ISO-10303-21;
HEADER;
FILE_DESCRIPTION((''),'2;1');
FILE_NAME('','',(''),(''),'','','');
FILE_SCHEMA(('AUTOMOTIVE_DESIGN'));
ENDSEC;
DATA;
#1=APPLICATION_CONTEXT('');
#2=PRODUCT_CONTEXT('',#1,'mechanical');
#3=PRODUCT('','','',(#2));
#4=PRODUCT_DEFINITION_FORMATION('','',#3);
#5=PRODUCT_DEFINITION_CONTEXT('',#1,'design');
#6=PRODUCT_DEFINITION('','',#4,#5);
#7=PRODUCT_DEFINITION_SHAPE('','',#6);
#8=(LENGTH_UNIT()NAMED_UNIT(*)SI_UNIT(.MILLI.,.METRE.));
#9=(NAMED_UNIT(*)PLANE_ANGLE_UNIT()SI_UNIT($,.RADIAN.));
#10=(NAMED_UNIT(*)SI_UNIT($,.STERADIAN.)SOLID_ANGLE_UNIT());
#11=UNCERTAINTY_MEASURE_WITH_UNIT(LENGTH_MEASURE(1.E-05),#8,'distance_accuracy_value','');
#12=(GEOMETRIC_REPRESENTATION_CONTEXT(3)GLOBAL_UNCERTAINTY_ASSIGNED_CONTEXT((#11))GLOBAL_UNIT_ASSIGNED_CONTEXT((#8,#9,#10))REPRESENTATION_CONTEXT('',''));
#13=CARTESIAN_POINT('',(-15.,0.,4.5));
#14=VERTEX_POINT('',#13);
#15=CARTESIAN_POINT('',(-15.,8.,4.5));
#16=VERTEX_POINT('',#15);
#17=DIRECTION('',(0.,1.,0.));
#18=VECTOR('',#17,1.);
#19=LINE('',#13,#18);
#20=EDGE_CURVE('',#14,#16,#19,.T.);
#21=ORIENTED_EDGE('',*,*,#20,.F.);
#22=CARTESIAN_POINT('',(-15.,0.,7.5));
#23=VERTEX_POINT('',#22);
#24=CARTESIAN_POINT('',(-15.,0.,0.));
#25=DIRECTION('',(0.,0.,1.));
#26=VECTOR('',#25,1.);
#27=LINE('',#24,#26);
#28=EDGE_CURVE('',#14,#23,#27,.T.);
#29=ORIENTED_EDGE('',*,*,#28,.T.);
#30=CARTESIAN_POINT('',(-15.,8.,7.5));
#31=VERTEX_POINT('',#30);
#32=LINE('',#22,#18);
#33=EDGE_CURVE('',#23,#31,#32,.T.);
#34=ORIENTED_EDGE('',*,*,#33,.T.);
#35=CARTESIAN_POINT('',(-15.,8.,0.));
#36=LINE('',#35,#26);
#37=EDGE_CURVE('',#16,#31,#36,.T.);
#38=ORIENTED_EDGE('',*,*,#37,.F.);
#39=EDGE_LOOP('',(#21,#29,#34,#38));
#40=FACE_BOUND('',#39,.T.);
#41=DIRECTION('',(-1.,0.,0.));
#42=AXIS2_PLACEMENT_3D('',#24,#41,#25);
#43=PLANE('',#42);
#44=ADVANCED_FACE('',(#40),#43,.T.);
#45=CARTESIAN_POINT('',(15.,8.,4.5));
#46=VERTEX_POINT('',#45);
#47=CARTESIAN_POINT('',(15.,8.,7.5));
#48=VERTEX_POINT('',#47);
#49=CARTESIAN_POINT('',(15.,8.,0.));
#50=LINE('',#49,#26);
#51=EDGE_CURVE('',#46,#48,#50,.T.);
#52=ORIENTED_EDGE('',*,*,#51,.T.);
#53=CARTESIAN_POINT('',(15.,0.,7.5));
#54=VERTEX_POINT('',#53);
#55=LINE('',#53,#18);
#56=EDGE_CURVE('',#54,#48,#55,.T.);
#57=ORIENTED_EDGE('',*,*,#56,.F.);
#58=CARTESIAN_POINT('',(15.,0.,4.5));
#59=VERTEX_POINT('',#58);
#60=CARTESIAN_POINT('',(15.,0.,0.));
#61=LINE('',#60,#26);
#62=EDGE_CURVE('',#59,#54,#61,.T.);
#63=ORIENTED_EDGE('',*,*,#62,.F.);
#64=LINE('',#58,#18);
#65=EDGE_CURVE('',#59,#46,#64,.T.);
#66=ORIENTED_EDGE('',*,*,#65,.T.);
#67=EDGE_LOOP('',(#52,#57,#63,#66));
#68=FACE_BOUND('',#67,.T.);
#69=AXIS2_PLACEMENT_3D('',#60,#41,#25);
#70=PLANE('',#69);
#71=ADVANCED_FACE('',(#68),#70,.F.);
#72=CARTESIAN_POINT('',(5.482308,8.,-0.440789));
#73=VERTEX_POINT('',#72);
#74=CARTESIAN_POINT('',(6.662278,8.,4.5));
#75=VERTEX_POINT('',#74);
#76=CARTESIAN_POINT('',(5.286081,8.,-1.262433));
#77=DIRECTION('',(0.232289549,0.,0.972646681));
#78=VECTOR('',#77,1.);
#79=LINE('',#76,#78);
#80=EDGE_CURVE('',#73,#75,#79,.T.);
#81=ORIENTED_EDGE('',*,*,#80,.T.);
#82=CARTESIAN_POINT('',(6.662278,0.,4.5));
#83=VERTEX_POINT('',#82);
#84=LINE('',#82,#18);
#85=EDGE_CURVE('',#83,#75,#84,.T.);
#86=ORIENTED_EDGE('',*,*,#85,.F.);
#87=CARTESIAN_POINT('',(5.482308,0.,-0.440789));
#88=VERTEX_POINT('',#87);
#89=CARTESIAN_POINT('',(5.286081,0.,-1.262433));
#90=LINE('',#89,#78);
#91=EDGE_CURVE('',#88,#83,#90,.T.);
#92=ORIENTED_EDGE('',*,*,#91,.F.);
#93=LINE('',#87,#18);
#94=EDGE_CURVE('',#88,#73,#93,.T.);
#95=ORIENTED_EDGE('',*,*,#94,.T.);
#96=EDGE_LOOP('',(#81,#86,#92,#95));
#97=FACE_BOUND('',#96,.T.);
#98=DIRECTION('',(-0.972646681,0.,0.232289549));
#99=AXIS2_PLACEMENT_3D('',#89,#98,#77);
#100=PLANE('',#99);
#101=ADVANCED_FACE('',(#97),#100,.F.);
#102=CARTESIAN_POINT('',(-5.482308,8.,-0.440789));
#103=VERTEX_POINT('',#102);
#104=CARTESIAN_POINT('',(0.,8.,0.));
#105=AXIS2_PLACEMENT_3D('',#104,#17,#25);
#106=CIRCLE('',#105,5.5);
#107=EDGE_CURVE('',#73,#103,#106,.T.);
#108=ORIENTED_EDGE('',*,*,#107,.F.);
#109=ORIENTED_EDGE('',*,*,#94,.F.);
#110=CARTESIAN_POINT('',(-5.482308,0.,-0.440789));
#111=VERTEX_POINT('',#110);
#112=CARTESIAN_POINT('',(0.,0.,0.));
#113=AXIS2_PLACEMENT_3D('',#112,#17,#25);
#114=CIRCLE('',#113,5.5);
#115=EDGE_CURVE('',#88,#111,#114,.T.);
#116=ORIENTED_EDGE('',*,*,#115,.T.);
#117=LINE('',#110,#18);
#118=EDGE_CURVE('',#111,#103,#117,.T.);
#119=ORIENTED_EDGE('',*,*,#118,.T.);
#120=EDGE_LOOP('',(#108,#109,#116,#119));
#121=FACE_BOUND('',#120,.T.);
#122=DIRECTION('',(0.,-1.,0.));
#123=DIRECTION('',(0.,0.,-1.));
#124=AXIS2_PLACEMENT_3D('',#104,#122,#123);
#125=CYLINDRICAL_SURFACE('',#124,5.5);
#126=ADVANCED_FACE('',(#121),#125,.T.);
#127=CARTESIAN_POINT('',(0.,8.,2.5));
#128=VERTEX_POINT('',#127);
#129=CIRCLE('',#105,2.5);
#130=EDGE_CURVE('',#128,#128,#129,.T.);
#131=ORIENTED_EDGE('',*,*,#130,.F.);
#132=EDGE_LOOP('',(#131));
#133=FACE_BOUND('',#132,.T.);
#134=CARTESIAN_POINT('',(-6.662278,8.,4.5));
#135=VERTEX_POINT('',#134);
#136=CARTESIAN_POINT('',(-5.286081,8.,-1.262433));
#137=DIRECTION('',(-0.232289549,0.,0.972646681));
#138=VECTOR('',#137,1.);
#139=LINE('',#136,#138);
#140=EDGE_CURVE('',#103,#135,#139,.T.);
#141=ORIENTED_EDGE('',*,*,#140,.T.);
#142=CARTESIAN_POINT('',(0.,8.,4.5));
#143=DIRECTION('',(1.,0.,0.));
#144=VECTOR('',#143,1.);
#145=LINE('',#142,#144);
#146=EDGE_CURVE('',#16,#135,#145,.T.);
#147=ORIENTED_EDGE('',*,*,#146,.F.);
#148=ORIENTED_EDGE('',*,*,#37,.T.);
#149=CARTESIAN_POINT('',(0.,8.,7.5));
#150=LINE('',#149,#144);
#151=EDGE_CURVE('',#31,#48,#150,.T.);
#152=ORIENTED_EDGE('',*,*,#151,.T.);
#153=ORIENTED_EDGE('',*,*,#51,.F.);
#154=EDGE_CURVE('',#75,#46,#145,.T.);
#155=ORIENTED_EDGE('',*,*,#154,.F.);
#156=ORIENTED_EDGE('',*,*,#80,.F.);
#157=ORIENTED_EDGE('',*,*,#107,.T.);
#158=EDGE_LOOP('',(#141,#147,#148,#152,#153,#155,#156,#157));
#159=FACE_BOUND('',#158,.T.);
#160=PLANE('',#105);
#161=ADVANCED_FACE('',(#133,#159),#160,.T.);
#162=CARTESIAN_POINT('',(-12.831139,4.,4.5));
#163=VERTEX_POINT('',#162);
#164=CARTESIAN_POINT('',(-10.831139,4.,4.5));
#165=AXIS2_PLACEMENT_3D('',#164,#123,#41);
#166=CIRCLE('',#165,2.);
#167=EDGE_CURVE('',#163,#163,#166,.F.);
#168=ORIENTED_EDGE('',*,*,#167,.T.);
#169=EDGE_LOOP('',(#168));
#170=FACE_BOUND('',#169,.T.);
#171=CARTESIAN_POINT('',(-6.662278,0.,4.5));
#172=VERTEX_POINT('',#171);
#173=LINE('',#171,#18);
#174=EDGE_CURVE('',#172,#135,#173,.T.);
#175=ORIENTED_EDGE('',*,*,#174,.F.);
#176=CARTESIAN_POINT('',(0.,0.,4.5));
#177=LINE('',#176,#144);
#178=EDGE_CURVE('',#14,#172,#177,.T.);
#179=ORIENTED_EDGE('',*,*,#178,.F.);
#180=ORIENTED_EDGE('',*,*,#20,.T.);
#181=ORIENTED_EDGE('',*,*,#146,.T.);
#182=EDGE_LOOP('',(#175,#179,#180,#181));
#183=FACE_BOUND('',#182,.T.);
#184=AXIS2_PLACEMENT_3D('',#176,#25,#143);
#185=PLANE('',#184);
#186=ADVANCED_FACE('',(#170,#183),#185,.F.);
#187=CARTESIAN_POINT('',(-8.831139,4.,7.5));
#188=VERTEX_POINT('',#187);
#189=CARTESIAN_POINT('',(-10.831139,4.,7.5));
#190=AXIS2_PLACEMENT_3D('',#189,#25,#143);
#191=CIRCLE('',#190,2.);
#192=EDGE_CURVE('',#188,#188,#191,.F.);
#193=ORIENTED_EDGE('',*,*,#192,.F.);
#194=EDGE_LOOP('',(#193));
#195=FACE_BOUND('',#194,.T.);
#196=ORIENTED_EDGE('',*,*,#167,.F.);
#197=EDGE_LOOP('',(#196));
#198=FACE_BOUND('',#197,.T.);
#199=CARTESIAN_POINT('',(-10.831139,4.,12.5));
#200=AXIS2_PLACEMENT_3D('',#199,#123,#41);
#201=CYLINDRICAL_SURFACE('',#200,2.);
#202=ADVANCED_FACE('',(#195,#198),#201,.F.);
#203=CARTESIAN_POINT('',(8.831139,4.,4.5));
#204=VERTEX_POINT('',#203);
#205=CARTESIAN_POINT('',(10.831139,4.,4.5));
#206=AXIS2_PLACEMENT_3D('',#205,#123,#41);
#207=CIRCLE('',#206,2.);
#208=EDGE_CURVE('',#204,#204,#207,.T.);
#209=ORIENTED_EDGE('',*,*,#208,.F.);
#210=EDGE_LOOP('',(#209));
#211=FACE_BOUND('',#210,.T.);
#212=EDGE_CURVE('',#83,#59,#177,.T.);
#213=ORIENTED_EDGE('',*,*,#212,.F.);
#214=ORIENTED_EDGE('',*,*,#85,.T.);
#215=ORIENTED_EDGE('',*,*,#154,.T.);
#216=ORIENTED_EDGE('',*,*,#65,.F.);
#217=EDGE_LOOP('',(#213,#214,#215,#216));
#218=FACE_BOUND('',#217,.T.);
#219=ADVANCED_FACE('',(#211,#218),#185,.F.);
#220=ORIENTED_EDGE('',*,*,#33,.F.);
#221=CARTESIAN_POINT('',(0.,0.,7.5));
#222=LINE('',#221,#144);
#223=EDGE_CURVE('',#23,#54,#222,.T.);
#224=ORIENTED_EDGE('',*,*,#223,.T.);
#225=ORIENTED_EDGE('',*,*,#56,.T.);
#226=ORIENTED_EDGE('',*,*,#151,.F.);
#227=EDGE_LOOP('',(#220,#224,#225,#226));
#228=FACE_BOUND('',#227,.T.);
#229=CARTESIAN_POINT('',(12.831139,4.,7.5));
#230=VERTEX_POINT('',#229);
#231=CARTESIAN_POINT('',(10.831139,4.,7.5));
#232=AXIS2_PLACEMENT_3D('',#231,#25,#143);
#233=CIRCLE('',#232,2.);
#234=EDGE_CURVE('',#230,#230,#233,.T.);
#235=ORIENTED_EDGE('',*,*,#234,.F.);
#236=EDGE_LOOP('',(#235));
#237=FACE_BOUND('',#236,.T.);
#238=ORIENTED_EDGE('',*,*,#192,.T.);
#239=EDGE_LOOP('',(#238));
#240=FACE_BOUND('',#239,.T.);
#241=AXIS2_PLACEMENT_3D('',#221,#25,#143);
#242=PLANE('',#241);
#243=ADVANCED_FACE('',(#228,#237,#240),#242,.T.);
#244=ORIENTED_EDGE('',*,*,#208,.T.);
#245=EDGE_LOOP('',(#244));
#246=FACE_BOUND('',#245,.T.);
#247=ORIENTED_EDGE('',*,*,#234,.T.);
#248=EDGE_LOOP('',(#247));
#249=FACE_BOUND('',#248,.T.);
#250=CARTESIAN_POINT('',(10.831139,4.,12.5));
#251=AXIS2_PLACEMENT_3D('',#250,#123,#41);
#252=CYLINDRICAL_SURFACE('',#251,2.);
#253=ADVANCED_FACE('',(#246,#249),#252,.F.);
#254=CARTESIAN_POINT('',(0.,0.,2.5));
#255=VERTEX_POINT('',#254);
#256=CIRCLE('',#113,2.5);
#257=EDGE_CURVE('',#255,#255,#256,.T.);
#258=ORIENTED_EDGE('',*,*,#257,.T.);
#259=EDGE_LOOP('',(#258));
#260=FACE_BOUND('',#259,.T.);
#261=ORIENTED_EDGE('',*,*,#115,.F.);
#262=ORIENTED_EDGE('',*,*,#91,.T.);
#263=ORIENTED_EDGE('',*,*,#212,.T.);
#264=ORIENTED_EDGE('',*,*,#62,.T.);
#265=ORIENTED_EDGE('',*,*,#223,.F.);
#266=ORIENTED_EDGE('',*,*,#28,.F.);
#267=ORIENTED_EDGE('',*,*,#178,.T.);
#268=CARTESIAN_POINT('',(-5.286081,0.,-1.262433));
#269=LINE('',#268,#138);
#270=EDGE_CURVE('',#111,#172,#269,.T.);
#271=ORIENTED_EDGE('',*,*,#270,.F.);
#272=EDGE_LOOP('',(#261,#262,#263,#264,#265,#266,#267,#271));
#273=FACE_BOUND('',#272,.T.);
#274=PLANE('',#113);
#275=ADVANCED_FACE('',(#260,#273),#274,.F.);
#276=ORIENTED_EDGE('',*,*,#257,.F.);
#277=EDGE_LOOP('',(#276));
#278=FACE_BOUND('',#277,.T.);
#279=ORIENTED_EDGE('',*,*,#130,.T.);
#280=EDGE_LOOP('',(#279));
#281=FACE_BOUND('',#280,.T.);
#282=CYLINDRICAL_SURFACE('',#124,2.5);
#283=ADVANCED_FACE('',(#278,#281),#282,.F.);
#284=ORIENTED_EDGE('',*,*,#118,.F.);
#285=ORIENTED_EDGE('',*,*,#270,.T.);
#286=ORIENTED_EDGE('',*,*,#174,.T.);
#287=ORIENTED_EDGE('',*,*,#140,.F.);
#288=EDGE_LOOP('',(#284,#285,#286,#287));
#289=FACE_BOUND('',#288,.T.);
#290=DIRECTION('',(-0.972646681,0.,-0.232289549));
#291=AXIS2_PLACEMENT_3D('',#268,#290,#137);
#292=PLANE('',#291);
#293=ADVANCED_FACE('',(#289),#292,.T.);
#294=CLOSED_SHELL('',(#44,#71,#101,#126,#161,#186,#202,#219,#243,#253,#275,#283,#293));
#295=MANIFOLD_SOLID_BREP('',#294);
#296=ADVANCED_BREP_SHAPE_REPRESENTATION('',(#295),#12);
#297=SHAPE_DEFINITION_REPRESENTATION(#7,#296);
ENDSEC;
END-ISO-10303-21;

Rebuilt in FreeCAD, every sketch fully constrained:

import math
import FreeCAD as App
import Part
import Sketcher

V = App.Vector

doc = App.newDocument("Part")
params = doc.addObject("Spreadsheet::Sheet", "Params")
for row, (alias, value) in enumerate([
    ("sketch1_diameter", "11 mm"),
    ("sketch1_diameter2", "5 mm"),
    ("pad1_length", "8 mm"),
    ("sketch2_radius", "5.5 mm"),
    ("sketch2_width", "30 mm"),
    ("sketch2_height", "3 mm"),
    ("pad2_length", "8 mm"),
    ("sketch3_diameter", "4 mm"),
    ("pocket1_length", "8 mm"),
], start=1):
    params.set(f"A{row}", alias)
    params.set(f"B{row}", "=" + value)
    params.setAlias(f"B{row}", alias)

body = doc.addObject("PartDesign::Body", "Body")

# Sketch on XZ plane
sketch1 = body.newObject("Sketcher::SketchObject", "Sketch")
sketch1.AttachmentSupport = (doc.getObject("XZ_Plane"), [""])
sketch1.MapMode = "FlatFace"
sketch1.addGeometry([
    Part.Circle(V(0, 0, 0), V(0, 0, 1), 5.5),
    Part.Circle(V(0, 0, 0), V(0, 0, 1), 2.5),
], False)
sketch1.addConstraint([
    Sketcher.Constraint("Coincident", 0, 3, -1, 1),
    Sketcher.Constraint("Coincident", 1, 3, -1, 1),
    Sketcher.Constraint("Diameter", 0, 11.0),
    Sketcher.Constraint("Diameter", 1, 5.0),
])
sketch1.setExpression("Constraints[2]", "Params.sketch1_diameter")
sketch1.setExpression("Constraints[3]", "Params.sketch1_diameter2")
pad1 = body.newObject("PartDesign::Pad", "Pad")
pad1.Profile = sketch1
pad1.setExpression("Length", "Params.pad1_length")
pad1.Reversed = True

# Sketch on XZ plane
sketch2 = body.newObject("Sketcher::SketchObject", "Sketch001")
sketch2.AttachmentSupport = (doc.getObject("XZ_Plane"), [""])
sketch2.MapMode = "FlatFace"
sketch2.addGeometry([
    Part.LineSegment(V(15, 4.5, 0), V(6.66, 4.5, 0)),  # 0
    Part.LineSegment(V(6.66, 4.5, 0), V(5.48, -0.44, 0)),  # 1
    Part.ArcOfCircle(Part.Circle(V(0, 0, 0), V(0, 0, 1), 5.5), math.radians(-4.6), math.radians(0)),  # 2
    Part.ArcOfCircle(Part.Circle(V(0, 0, 0), V(0, 0, 1), 5.5), math.radians(0), math.radians(55)),  # 3
    Part.ArcOfCircle(Part.Circle(V(0, 0, 0), V(0, 0, 1), 5.5), math.radians(55), math.radians(90)),  # 4
    Part.ArcOfCircle(Part.Circle(V(0, 0, 0), V(0, 0, 1), 5.5), math.radians(90), math.radians(125)),  # 5
    Part.ArcOfCircle(Part.Circle(V(0, 0, 0), V(0, 0, 1), 5.5), math.radians(125), math.radians(185)),  # 6
    Part.LineSegment(V(-5.48, -0.44, 0), V(-6.66, 4.5, 0)),  # 7
    Part.LineSegment(V(-6.66, 4.5, 0), V(-15, 4.5, 0)),  # 8
    Part.LineSegment(V(-15, 4.5, 0), V(-15, 7.5, 0)),  # 9
    Part.LineSegment(V(-15, 7.5, 0), V(15, 7.5, 0)),  # 10
    Part.LineSegment(V(15, 7.5, 0), V(15, 4.5, 0)),  # 11
], False)
sketch2.addConstraint([
    Sketcher.Constraint("Coincident", 0, 2, 1, 1),
    Sketcher.Constraint("Coincident", 1, 2, 2, 1),
    Sketcher.Constraint("Tangent", 2, 2, 3, 1),
    Sketcher.Constraint("Tangent", 3, 2, 4, 1),
    Sketcher.Constraint("Tangent", 4, 2, 5, 1),
    Sketcher.Constraint("Tangent", 5, 2, 6, 1),
    Sketcher.Constraint("Coincident", 6, 2, 7, 1),
    Sketcher.Constraint("Coincident", 7, 2, 8, 1),
    Sketcher.Constraint("Coincident", 8, 2, 9, 1),
    Sketcher.Constraint("Coincident", 9, 2, 10, 1),
    Sketcher.Constraint("Coincident", 10, 2, 11, 1),
    Sketcher.Constraint("Coincident", 11, 2, 0, 1),
    Sketcher.Constraint("Horizontal", 0),
    Sketcher.Constraint("Horizontal", 8),
    Sketcher.Constraint("Vertical", 9),
    Sketcher.Constraint("Horizontal", 10),
    Sketcher.Constraint("Vertical", 11),
    Sketcher.Constraint("Coincident", 2, 3, -1, 1),
    Sketcher.Constraint("Coincident", 4, 3, -1, 1),
    Sketcher.Constraint("Coincident", 6, 3, -1, 1),
    Sketcher.Constraint("Symmetric", 0, 2, 7, 2, -2),
    Sketcher.Constraint("PointOnObject", 2, 2, -1),
    Sketcher.Constraint("PointOnObject", 4, 2, -2),
    Sketcher.Constraint("Horizontal", 0, 2, 3, 2),
    Sketcher.Constraint("Horizontal", 3, 2, 5, 2),
    Sketcher.Constraint("Horizontal", 1, 2, 6, 2),
    Sketcher.Constraint("Equal", 0, 8),
    Sketcher.Constraint("Radius", 2, 5.5),
    Sketcher.Constraint("DistanceX", 10, 1, 10, 2, 30.0),
    Sketcher.Constraint("DistanceY", 9, 1, 9, 2, 3.0),
    Sketcher.Constraint("DistanceY", 3, 2, 4, 2, 1.0),
    Sketcher.Constraint("DistanceX", 3, 2, 0, 2, 3.5),
    Sketcher.Constraint("DistanceX", -1, 1, 1, 2, 5.482308),
])
sketch2.setExpression("Constraints[27]", "Params.sketch2_radius")
sketch2.setExpression("Constraints[28]", "Params.sketch2_width")
sketch2.setExpression("Constraints[29]", "Params.sketch2_height")
pad2 = body.newObject("PartDesign::Pad", "Pad001")
pad2.Profile = sketch2
pad2.setExpression("Length", "Params.pad2_length")
pad2.Reversed = True

# Sketch on XY plane
sketch3 = body.newObject("Sketcher::SketchObject", "Sketch002")
sketch3.AttachmentSupport = (doc.getObject("XY_Plane"), [""])
sketch3.MapMode = "FlatFace"
sketch3.AttachmentOffset = App.Placement(V(0, 0, 4.5), App.Rotation())
sketch3.addGeometry([
    Part.Circle(V(10.8, 4, 0), V(0, 0, 1), 2),
    Part.Circle(V(-10.8, 4, 0), V(0, 0, 1), 2),
], False)
sketch3.addConstraint([
    Sketcher.Constraint("Equal", 0, 1),
    Sketcher.Constraint("Symmetric", 0, 3, 1, 3, -2),
    Sketcher.Constraint("Diameter", 0, 4.0),
    Sketcher.Constraint("DistanceY", -1, 1, 0, 3, 4.0),
    Sketcher.Constraint("DistanceX", -1, 1, 0, 3, 10.831139),
])
sketch3.setExpression("Constraints[2]", "Params.sketch3_diameter")
pocket1 = body.newObject("PartDesign::Pocket", "Pocket")
pocket1.Profile = sketch3
pocket1.setExpression("Length", "Params.pocket1_length")
pocket1.Reversed = True

doc.recompute()
